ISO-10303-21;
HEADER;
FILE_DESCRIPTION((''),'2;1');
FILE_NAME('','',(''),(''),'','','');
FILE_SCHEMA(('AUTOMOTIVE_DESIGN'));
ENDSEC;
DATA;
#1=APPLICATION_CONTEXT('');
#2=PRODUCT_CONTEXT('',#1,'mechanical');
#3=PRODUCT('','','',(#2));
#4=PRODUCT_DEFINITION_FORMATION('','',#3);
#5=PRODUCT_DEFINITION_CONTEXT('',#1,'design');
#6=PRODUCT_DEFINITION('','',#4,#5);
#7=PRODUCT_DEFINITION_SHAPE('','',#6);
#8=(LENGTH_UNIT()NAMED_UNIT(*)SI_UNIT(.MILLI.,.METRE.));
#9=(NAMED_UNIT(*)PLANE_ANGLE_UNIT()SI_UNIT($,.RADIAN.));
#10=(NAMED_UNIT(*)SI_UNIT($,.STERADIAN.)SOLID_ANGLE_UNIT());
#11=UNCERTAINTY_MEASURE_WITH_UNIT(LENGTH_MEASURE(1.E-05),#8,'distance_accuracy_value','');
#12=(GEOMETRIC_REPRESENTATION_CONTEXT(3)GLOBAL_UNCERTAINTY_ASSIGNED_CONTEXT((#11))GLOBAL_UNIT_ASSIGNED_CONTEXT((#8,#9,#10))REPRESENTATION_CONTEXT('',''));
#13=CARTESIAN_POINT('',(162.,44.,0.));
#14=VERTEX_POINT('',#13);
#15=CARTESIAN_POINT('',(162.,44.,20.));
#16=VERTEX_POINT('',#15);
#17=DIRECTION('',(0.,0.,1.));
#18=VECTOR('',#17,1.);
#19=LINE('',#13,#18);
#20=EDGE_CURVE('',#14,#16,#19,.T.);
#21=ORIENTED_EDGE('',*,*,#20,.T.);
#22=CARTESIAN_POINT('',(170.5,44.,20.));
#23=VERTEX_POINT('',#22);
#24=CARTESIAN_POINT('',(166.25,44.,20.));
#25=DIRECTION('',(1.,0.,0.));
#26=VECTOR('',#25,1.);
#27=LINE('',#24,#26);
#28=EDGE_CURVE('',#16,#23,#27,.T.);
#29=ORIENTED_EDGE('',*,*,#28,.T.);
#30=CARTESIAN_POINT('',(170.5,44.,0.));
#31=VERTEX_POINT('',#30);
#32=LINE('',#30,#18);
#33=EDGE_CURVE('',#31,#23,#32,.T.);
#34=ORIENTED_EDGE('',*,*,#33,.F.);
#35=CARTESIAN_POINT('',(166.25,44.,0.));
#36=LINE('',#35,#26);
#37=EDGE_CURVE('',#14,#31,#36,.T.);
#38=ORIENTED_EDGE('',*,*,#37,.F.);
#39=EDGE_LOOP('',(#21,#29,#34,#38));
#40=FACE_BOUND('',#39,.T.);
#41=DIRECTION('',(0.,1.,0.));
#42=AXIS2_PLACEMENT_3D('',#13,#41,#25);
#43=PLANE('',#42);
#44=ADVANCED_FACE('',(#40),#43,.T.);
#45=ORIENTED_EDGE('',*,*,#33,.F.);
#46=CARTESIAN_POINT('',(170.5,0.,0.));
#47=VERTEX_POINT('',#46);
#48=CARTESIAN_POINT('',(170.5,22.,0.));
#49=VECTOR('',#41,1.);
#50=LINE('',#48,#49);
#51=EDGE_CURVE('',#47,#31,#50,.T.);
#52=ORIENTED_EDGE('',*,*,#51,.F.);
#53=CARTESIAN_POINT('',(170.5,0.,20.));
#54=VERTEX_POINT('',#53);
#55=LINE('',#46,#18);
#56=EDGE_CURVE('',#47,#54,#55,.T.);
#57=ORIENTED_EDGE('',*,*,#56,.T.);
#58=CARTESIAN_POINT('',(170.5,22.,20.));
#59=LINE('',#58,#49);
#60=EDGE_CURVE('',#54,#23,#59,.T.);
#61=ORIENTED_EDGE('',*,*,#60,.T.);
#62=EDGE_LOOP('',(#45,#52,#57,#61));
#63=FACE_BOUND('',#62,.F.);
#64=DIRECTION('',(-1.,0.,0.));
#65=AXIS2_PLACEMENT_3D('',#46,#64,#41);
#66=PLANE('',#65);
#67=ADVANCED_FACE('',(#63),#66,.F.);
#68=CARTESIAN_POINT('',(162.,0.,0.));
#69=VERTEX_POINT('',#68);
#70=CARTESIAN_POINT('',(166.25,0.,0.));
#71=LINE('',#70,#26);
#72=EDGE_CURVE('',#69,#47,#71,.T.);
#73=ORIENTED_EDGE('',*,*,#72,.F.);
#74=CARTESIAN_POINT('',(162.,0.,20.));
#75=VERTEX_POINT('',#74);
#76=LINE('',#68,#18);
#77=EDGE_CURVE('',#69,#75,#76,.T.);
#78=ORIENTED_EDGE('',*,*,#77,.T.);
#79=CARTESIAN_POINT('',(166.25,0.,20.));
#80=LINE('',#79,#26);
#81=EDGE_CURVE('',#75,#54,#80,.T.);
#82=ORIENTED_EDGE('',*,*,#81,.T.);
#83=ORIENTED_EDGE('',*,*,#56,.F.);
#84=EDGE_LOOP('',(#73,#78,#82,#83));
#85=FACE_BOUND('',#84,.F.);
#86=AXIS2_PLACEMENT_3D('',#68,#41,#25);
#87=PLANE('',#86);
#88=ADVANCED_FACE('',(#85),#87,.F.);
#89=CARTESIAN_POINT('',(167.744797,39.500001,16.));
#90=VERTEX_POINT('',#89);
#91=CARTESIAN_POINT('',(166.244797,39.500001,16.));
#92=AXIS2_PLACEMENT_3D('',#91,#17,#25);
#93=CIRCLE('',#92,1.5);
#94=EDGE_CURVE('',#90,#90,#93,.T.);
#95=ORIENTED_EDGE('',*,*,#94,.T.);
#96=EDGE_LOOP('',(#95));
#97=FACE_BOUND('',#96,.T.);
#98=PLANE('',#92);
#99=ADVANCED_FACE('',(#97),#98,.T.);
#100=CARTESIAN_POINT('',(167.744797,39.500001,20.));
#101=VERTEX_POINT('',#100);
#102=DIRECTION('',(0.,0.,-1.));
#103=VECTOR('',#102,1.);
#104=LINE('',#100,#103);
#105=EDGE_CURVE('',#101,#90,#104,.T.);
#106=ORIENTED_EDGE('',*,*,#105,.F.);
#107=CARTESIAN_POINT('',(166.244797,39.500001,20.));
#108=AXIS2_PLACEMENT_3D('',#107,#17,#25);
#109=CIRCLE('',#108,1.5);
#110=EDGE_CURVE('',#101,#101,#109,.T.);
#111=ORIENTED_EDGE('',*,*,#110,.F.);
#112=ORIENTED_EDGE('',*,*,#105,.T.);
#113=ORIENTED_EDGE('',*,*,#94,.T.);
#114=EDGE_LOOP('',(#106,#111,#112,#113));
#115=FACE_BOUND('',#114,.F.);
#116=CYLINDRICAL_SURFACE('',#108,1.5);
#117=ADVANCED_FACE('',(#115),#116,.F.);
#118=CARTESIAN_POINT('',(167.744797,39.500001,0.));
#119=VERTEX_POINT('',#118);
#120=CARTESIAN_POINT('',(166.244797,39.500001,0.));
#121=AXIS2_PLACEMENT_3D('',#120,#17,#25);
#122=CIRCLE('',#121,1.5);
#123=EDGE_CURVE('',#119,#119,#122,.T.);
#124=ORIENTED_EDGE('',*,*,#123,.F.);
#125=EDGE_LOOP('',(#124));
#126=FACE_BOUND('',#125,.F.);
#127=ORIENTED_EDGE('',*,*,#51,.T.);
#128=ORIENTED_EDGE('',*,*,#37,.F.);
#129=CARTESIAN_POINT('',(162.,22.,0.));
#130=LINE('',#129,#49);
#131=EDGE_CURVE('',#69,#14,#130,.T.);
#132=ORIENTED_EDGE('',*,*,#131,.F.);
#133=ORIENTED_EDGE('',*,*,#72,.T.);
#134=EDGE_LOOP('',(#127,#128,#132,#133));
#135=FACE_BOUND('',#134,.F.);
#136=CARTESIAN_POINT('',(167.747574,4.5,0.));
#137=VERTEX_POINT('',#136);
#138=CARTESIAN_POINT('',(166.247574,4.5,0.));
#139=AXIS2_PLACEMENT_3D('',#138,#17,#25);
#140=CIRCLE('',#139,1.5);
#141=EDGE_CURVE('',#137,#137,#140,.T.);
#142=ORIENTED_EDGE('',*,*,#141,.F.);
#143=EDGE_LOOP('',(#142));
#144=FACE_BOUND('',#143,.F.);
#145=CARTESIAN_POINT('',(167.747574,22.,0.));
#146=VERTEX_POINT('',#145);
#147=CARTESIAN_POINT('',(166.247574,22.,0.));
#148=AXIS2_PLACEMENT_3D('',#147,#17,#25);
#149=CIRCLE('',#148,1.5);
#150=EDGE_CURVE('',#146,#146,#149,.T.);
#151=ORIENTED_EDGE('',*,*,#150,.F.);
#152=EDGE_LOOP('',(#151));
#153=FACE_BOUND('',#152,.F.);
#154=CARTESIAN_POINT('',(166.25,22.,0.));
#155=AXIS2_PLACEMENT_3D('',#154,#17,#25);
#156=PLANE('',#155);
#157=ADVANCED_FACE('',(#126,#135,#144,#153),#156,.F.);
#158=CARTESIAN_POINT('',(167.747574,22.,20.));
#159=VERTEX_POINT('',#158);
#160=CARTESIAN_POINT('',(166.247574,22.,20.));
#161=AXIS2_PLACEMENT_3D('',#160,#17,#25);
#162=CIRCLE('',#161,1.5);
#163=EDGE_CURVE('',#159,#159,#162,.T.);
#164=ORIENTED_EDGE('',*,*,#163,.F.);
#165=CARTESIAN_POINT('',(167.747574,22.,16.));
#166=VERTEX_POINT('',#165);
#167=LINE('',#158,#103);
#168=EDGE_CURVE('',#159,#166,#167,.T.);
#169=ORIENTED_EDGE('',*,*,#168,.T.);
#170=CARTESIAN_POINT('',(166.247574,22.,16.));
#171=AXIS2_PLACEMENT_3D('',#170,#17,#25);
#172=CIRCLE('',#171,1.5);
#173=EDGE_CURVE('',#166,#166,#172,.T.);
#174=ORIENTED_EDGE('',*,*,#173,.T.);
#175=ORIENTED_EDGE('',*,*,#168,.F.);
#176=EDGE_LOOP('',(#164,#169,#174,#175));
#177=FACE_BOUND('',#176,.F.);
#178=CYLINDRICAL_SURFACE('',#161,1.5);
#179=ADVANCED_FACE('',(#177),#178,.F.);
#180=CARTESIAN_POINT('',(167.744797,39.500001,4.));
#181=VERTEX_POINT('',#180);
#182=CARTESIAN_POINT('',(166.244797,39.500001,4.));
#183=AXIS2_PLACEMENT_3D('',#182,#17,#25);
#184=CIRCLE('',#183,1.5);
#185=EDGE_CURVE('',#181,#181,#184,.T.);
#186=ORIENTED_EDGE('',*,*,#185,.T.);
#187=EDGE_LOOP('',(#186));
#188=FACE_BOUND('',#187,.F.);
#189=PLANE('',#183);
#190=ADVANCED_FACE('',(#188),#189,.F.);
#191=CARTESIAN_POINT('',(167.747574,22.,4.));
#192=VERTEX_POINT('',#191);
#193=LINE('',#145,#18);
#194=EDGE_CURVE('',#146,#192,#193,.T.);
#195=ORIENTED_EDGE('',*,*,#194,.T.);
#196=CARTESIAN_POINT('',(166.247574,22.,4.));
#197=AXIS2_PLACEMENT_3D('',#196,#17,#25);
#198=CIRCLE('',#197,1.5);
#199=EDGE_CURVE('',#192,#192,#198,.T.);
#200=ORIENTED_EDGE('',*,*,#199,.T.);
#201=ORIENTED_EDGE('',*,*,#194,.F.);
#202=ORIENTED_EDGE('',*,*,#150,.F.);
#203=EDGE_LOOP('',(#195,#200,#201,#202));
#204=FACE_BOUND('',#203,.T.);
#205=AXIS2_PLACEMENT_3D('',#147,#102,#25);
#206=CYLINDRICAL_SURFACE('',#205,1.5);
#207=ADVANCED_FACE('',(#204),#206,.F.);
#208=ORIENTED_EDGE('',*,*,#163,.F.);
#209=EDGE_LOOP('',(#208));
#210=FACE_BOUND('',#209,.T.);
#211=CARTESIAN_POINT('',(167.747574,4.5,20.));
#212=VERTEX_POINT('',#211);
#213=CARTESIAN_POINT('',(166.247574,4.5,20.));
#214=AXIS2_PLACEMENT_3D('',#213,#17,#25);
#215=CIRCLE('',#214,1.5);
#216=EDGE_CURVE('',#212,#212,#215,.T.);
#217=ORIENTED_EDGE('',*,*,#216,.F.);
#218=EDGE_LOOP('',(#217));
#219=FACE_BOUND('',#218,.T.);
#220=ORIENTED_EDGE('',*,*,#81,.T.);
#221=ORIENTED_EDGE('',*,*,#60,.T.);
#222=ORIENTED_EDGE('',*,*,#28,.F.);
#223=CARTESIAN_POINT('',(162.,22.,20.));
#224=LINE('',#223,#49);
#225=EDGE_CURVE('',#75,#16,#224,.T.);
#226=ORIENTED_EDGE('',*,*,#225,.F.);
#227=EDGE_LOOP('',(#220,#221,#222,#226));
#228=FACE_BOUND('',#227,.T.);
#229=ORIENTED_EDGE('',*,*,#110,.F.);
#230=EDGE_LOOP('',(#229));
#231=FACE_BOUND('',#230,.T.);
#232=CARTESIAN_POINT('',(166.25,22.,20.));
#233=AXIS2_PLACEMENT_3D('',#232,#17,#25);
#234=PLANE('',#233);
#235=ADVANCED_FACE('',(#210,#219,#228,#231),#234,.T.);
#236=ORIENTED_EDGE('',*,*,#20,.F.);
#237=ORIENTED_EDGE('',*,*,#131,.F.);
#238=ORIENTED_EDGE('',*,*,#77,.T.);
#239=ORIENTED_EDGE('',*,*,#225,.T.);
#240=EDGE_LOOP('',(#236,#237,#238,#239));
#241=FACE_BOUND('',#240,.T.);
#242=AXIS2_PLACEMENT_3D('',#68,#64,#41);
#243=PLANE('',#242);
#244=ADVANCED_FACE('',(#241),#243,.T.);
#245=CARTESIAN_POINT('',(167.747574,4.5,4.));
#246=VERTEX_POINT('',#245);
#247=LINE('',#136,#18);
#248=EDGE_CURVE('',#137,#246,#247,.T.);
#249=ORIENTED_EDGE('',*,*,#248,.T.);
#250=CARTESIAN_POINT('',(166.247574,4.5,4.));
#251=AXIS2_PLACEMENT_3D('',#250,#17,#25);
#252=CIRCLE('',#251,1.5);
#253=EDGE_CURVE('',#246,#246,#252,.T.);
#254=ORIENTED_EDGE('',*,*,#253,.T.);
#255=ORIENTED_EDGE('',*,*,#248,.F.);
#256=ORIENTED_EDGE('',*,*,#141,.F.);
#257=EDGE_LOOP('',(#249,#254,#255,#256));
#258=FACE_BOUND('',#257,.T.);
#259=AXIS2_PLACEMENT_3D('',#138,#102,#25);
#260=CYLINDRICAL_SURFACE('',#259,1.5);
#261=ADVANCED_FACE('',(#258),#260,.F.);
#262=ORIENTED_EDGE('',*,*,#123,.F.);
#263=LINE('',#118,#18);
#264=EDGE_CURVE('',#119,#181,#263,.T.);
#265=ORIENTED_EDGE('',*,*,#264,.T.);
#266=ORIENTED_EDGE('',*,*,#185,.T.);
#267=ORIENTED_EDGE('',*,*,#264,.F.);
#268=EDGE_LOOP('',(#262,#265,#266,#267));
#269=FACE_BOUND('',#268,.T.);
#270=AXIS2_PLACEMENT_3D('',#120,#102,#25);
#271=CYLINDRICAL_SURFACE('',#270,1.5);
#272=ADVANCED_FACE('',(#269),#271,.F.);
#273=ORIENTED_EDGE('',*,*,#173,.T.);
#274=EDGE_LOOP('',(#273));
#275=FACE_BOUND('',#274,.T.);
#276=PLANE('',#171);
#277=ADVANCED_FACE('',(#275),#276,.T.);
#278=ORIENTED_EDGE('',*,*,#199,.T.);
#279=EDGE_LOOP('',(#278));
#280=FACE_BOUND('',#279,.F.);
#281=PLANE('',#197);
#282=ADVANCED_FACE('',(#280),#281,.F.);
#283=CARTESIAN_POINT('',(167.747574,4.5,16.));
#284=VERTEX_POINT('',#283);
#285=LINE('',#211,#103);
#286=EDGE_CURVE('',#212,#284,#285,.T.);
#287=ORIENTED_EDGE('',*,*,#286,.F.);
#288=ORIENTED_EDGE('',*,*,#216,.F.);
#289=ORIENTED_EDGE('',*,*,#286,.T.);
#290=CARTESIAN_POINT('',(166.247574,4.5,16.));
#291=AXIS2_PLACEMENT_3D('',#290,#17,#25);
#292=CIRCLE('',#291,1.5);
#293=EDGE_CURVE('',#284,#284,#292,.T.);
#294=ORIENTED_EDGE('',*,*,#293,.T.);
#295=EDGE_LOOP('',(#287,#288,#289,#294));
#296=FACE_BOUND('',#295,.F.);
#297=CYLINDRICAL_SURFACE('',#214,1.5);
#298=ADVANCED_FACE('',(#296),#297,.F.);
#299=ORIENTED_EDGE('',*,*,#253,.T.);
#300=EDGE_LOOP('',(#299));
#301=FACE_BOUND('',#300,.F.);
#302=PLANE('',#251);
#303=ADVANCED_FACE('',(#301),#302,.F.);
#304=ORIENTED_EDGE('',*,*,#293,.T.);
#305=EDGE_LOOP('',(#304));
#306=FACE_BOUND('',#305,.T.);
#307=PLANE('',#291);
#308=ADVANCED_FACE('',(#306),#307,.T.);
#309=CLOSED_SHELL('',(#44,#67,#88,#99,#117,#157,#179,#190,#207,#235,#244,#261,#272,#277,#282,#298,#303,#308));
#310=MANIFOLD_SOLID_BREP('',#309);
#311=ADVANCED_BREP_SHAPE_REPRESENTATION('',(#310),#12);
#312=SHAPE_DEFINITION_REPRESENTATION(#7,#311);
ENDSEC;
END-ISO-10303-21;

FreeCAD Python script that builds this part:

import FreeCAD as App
import Part
import Sketcher
from FreeCAD import Vector

doc = App.newDocument("Part")
body = doc.addObject("PartDesign::Body", "Body")

sketch1 = body.newObject("Sketcher::SketchObject", "Sketch")
sketch1.AttachmentSupport = (doc.getObject("XY_Plane"), [""])
sketch1.MapMode = "FlatFace"
sketch1.addGeometry(Part.LineSegment(Vector(162, 44, 0), Vector(162, 0, 0)), False)
sketch1.addGeometry(Part.LineSegment(Vector(162, 0, 0), Vector(170, 0, 0)), False)
sketch1.addGeometry(Part.LineSegment(Vector(170, 0, 0), Vector(170, 44, 0)), False)
sketch1.addGeometry(Part.LineSegment(Vector(170, 44, 0), Vector(162, 44, 0)), False)
sketch1.addConstraint(Sketcher.Constraint("Coincident", 0, 2, 1, 1))
sketch1.addConstraint(Sketcher.Constraint("Coincident", 1, 2, 2, 1))
sketch1.addConstraint(Sketcher.Constraint("Coincident", 2, 2, 3, 1))
sketch1.addConstraint(Sketcher.Constraint("Coincident", 3, 2, 0, 1))
sketch1.addConstraint(Sketcher.Constraint("Vertical", 0))
sketch1.addConstraint(Sketcher.Constraint("Horizontal", 1))
sketch1.addConstraint(Sketcher.Constraint("Vertical", 2))
sketch1.addConstraint(Sketcher.Constraint("Horizontal", 3))
sketch1.addConstraint(Sketcher.Constraint("PointOnObject", 0, 2, -1))
sketch1.addConstraint(Sketcher.Constraint("DistanceY", 0, 2, 0, 1, 44.0))
sketch1.addConstraint(Sketcher.Constraint("DistanceX", 1, 1, 1, 2, 8.5))
sketch1.addConstraint(Sketcher.Constraint("DistanceX", -1, 1, 0, 2, 162.0))
pad1 = body.newObject("PartDesign::Pad", "Pad")
pad1.Profile = sketch1
pad1.Length = 20

sketch2 = body.newObject("Sketcher::SketchObject", "Sketch001")
sketch2.AttachmentSupport = (doc.getObject("XY_Plane"), [""])
sketch2.MapMode = "FlatFace"
sketch2.addGeometry(Part.Circle(Vector(166.2, 39.5, 0), Vector(0, 0, 1), 1.5), False)
sketch2.addGeometry(Part.Circle(Vector(166.2, 22, 0), Vector(0, 0, 1), 1.5), False)
sketch2.addGeometry(Part.Circle(Vector(166.2, 4.5, 0), Vector(0, 0, 1), 1.5), False)
sketch2.addConstraint(Sketcher.Constraint("Equal", 0, 1))
sketch2.addConstraint(Sketcher.Constraint("Equal", 1, 2))
sketch2.addConstraint(Sketcher.Constraint("Vertical", 1, 3, 2, 3))
sketch2.addConstraint(Sketcher.Constraint("Diameter", 0, 3.0))
sketch2.addConstraint(Sketcher.Constraint("DistanceY", -1, 1, 1, 3, 22.0))
sketch2.addConstraint(Sketcher.Constraint("DistanceY", 2, 3, 0, 3, 35.000001))
sketch2.addConstraint(Sketcher.Constraint("DistanceY", -1, 1, 0, 3, 39.500001))
sketch2.addConstraint(Sketcher.Constraint("DistanceX", -1, 1, 0, 3, 166.244797))
sketch2.addConstraint(Sketcher.Constraint("DistanceX", -1, 1, 1, 3, 166.247574))
pocket1 = body.newObject("PartDesign::Pocket", "Pocket")
pocket1.Profile = sketch2
pocket1.Length = 4
pocket1.Reversed = True

sketch3 = body.newObject("Sketcher::SketchObject", "Sketch002")
sketch3.AttachmentSupport = (doc.getObject("XY_Plane"), [""])
sketch3.MapMode = "FlatFace"
sketch3.AttachmentOffset = App.Placement(Vector(0, 0, 20), App.Rotation())
sketch3.addGeometry(Part.Circle(Vector(166.2, 39.5, 0), Vector(0, 0, 1), 1.5), False)
sketch3.addGeometry(Part.Circle(Vector(166.2, 22, 0), Vector(0, 0, 1), 1.5), False)
sketch3.addGeometry(Part.Circle(Vector(166.2, 4.5, 0), Vector(0, 0, 1), 1.5), False)
sketch3.addConstraint(Sketcher.Constraint("Equal", 0, 1))
sketch3.addConstraint(Sketcher.Constraint("Equal", 1, 2))
sketch3.addConstraint(Sketcher.Constraint("Vertical", 1, 3, 2, 3))
sketch3.addConstraint(Sketcher.Constraint("Diameter", 0, 3.0))
sketch3.addConstraint(Sketcher.Constraint("DistanceY", -1, 1, 1, 3, 22.0))
sketch3.addConstraint(Sketcher.Constraint("DistanceY", 2, 3, 0, 3, 35.000001))
sketch3.addConstraint(Sketcher.Constraint("DistanceY", -1, 1, 0, 3, 39.500001))
sketch3.addConstraint(Sketcher.Constraint("DistanceX", -1, 1, 0, 3, 166.244797))
sketch3.addConstraint(Sketcher.Constraint("DistanceX", -1, 1, 1, 3, 166.247574))
pocket2 = body.newObject("PartDesign::Pocket", "Pocket001")
pocket2.Profile = sketch3
pocket2.Length = 4

doc.recompute()
